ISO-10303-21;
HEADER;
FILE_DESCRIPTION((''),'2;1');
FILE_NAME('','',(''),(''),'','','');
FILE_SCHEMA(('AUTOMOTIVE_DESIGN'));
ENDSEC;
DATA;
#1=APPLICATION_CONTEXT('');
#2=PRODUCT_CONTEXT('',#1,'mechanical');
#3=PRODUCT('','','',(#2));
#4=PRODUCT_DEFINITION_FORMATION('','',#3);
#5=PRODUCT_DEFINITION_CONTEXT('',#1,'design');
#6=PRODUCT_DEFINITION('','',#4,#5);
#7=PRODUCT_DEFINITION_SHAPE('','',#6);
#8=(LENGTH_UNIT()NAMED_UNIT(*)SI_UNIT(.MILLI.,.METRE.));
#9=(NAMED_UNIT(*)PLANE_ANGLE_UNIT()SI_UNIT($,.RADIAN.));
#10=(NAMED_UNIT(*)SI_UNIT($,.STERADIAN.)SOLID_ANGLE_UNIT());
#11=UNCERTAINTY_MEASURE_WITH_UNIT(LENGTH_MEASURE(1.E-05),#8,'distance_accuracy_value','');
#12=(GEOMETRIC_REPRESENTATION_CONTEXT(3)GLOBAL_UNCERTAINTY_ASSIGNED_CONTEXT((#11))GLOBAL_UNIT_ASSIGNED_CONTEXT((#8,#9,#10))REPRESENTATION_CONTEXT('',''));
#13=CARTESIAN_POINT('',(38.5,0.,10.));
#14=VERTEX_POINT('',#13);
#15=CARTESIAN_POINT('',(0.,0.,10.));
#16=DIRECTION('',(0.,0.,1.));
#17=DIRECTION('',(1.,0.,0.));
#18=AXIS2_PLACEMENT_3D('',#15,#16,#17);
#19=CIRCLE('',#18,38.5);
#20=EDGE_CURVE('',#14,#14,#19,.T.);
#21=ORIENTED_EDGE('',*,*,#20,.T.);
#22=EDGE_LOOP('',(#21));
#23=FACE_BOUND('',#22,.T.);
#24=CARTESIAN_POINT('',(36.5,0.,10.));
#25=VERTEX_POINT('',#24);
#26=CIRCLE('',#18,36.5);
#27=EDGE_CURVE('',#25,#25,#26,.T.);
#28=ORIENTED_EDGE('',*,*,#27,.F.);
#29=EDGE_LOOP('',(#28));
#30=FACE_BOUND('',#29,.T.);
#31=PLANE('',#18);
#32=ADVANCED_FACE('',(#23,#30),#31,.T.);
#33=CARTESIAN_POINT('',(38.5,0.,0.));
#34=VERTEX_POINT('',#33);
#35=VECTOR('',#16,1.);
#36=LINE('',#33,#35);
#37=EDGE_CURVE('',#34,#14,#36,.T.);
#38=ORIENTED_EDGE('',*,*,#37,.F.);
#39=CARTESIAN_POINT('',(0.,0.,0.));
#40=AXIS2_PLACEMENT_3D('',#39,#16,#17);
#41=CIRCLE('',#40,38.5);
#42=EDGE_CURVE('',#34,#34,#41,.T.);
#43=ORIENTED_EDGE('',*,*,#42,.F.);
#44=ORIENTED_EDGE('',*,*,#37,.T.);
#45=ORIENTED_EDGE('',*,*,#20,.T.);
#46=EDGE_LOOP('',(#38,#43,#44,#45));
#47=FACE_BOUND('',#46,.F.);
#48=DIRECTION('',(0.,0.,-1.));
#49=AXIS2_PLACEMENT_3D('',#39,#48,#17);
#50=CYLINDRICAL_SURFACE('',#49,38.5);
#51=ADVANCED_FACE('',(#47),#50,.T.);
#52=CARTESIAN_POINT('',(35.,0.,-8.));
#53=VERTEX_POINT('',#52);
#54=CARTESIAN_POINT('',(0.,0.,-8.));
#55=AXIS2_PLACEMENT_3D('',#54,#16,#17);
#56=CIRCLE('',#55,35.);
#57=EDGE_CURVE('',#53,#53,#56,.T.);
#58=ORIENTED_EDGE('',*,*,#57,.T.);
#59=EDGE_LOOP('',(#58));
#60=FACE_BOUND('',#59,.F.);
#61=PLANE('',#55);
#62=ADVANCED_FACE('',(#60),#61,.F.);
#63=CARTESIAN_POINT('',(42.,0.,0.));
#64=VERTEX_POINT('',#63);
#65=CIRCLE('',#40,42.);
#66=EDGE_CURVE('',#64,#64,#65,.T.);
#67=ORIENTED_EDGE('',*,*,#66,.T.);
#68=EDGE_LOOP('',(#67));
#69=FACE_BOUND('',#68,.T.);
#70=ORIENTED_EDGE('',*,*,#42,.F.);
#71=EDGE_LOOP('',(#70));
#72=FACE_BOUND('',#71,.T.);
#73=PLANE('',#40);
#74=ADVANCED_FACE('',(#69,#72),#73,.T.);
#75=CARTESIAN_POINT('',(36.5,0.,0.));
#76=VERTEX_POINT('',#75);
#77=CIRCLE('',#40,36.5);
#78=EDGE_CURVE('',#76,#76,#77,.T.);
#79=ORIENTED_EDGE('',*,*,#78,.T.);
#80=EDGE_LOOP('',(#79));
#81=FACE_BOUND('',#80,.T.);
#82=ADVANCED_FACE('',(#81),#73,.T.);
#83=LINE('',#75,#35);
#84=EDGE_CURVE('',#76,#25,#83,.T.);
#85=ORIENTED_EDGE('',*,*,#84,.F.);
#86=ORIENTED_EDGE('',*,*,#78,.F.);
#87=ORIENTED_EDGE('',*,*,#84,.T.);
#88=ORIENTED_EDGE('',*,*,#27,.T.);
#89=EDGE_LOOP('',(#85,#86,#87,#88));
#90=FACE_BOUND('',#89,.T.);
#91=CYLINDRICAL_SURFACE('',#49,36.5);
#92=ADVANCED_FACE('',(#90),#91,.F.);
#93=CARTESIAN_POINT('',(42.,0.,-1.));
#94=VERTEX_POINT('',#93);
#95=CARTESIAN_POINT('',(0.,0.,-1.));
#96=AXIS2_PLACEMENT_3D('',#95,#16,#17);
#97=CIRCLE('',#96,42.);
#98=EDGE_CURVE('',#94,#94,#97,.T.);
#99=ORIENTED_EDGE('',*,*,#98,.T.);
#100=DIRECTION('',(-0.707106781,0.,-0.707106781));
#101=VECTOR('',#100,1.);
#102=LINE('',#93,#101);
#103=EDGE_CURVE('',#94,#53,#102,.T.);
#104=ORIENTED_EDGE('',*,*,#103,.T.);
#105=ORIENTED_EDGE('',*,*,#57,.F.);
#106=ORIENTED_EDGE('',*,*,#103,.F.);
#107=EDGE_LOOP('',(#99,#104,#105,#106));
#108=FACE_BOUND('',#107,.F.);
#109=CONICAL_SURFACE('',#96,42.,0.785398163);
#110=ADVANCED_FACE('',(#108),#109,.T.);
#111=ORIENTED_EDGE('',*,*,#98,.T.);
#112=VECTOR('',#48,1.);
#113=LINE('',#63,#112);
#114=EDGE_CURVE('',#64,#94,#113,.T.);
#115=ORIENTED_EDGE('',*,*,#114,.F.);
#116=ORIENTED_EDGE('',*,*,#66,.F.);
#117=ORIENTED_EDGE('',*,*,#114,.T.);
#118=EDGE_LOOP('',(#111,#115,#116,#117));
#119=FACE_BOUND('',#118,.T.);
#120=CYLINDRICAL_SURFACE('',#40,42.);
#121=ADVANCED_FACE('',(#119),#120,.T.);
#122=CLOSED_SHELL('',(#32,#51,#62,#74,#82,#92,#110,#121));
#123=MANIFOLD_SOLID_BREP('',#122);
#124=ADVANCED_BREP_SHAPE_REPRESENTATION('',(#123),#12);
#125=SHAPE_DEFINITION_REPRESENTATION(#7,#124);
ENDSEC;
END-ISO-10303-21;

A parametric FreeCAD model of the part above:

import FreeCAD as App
import Part
import Sketcher
Q = App.Units.Quantity


def edges_at(feature, points):
    """Names of the edges that pass closest to the given points."""
    edges = feature.Shape.Edges
    near = lambda p: min(range(len(edges)), key=lambda i: edges[i].distToShape(Part.Vertex(*p))[0])
    return sorted({f"Edge{near(p) + 1}" for p in points})

doc = App.newDocument("Part")
body = doc.addObject("PartDesign::Body", "Body")

sketch1 = body.newObject("Sketcher::SketchObject", "Sketch")
sketch1.AttachmentSupport = (doc.getObject("XY_Plane"), [""])
sketch1.MapMode = "FlatFace"
sketch1.addGeometry([
    Part.Circle(App.Vector(0, 0, 0), App.Vector(0, 0, 1), 38),
    Part.Circle(App.Vector(0, 0, 0), App.Vector(0, 0, 1), 36),
], False)
sketch1.addConstraint([
    Sketcher.Constraint("Coincident", 0, 3, -1, 1),
    Sketcher.Constraint("Coincident", 1, 3, -1, 1),
    Sketcher.Constraint("Diameter", 0, Q("77 mm")),
    Sketcher.Constraint("Diameter", 1, Q("73 mm")),
])
pad1 = body.newObject("PartDesign::Pad", "Pad")
pad1.Profile = sketch1
pad1.Length = 10

sketch2 = body.newObject("Sketcher::SketchObject", "Sketch001")
sketch2.AttachmentSupport = (doc.getObject("XY_Plane"), [""])
sketch2.MapMode = "FlatFace"
sketch2.addGeometry(Part.Circle(App.Vector(0, 0, 0), App.Vector(0, 0, 1), 42), False)
sketch2.addConstraint([
    Sketcher.Constraint("Coincident", 0, 3, -1, 1),
    Sketcher.Constraint("Diameter", 0, Q("84 mm")),
])
pad2 = body.newObject("PartDesign::Pad", "Pad001")
pad2.Profile = sketch2
pad2.Length = 8
pad2.Reversed = True
doc.recompute()

chamfer = body.newObject("PartDesign::Chamfer", "Chamfer")
chamfer.Base = (pad2, edges_at(pad2, [(-42, 0, -8)]))
chamfer.Size = 7

doc.recompute()
